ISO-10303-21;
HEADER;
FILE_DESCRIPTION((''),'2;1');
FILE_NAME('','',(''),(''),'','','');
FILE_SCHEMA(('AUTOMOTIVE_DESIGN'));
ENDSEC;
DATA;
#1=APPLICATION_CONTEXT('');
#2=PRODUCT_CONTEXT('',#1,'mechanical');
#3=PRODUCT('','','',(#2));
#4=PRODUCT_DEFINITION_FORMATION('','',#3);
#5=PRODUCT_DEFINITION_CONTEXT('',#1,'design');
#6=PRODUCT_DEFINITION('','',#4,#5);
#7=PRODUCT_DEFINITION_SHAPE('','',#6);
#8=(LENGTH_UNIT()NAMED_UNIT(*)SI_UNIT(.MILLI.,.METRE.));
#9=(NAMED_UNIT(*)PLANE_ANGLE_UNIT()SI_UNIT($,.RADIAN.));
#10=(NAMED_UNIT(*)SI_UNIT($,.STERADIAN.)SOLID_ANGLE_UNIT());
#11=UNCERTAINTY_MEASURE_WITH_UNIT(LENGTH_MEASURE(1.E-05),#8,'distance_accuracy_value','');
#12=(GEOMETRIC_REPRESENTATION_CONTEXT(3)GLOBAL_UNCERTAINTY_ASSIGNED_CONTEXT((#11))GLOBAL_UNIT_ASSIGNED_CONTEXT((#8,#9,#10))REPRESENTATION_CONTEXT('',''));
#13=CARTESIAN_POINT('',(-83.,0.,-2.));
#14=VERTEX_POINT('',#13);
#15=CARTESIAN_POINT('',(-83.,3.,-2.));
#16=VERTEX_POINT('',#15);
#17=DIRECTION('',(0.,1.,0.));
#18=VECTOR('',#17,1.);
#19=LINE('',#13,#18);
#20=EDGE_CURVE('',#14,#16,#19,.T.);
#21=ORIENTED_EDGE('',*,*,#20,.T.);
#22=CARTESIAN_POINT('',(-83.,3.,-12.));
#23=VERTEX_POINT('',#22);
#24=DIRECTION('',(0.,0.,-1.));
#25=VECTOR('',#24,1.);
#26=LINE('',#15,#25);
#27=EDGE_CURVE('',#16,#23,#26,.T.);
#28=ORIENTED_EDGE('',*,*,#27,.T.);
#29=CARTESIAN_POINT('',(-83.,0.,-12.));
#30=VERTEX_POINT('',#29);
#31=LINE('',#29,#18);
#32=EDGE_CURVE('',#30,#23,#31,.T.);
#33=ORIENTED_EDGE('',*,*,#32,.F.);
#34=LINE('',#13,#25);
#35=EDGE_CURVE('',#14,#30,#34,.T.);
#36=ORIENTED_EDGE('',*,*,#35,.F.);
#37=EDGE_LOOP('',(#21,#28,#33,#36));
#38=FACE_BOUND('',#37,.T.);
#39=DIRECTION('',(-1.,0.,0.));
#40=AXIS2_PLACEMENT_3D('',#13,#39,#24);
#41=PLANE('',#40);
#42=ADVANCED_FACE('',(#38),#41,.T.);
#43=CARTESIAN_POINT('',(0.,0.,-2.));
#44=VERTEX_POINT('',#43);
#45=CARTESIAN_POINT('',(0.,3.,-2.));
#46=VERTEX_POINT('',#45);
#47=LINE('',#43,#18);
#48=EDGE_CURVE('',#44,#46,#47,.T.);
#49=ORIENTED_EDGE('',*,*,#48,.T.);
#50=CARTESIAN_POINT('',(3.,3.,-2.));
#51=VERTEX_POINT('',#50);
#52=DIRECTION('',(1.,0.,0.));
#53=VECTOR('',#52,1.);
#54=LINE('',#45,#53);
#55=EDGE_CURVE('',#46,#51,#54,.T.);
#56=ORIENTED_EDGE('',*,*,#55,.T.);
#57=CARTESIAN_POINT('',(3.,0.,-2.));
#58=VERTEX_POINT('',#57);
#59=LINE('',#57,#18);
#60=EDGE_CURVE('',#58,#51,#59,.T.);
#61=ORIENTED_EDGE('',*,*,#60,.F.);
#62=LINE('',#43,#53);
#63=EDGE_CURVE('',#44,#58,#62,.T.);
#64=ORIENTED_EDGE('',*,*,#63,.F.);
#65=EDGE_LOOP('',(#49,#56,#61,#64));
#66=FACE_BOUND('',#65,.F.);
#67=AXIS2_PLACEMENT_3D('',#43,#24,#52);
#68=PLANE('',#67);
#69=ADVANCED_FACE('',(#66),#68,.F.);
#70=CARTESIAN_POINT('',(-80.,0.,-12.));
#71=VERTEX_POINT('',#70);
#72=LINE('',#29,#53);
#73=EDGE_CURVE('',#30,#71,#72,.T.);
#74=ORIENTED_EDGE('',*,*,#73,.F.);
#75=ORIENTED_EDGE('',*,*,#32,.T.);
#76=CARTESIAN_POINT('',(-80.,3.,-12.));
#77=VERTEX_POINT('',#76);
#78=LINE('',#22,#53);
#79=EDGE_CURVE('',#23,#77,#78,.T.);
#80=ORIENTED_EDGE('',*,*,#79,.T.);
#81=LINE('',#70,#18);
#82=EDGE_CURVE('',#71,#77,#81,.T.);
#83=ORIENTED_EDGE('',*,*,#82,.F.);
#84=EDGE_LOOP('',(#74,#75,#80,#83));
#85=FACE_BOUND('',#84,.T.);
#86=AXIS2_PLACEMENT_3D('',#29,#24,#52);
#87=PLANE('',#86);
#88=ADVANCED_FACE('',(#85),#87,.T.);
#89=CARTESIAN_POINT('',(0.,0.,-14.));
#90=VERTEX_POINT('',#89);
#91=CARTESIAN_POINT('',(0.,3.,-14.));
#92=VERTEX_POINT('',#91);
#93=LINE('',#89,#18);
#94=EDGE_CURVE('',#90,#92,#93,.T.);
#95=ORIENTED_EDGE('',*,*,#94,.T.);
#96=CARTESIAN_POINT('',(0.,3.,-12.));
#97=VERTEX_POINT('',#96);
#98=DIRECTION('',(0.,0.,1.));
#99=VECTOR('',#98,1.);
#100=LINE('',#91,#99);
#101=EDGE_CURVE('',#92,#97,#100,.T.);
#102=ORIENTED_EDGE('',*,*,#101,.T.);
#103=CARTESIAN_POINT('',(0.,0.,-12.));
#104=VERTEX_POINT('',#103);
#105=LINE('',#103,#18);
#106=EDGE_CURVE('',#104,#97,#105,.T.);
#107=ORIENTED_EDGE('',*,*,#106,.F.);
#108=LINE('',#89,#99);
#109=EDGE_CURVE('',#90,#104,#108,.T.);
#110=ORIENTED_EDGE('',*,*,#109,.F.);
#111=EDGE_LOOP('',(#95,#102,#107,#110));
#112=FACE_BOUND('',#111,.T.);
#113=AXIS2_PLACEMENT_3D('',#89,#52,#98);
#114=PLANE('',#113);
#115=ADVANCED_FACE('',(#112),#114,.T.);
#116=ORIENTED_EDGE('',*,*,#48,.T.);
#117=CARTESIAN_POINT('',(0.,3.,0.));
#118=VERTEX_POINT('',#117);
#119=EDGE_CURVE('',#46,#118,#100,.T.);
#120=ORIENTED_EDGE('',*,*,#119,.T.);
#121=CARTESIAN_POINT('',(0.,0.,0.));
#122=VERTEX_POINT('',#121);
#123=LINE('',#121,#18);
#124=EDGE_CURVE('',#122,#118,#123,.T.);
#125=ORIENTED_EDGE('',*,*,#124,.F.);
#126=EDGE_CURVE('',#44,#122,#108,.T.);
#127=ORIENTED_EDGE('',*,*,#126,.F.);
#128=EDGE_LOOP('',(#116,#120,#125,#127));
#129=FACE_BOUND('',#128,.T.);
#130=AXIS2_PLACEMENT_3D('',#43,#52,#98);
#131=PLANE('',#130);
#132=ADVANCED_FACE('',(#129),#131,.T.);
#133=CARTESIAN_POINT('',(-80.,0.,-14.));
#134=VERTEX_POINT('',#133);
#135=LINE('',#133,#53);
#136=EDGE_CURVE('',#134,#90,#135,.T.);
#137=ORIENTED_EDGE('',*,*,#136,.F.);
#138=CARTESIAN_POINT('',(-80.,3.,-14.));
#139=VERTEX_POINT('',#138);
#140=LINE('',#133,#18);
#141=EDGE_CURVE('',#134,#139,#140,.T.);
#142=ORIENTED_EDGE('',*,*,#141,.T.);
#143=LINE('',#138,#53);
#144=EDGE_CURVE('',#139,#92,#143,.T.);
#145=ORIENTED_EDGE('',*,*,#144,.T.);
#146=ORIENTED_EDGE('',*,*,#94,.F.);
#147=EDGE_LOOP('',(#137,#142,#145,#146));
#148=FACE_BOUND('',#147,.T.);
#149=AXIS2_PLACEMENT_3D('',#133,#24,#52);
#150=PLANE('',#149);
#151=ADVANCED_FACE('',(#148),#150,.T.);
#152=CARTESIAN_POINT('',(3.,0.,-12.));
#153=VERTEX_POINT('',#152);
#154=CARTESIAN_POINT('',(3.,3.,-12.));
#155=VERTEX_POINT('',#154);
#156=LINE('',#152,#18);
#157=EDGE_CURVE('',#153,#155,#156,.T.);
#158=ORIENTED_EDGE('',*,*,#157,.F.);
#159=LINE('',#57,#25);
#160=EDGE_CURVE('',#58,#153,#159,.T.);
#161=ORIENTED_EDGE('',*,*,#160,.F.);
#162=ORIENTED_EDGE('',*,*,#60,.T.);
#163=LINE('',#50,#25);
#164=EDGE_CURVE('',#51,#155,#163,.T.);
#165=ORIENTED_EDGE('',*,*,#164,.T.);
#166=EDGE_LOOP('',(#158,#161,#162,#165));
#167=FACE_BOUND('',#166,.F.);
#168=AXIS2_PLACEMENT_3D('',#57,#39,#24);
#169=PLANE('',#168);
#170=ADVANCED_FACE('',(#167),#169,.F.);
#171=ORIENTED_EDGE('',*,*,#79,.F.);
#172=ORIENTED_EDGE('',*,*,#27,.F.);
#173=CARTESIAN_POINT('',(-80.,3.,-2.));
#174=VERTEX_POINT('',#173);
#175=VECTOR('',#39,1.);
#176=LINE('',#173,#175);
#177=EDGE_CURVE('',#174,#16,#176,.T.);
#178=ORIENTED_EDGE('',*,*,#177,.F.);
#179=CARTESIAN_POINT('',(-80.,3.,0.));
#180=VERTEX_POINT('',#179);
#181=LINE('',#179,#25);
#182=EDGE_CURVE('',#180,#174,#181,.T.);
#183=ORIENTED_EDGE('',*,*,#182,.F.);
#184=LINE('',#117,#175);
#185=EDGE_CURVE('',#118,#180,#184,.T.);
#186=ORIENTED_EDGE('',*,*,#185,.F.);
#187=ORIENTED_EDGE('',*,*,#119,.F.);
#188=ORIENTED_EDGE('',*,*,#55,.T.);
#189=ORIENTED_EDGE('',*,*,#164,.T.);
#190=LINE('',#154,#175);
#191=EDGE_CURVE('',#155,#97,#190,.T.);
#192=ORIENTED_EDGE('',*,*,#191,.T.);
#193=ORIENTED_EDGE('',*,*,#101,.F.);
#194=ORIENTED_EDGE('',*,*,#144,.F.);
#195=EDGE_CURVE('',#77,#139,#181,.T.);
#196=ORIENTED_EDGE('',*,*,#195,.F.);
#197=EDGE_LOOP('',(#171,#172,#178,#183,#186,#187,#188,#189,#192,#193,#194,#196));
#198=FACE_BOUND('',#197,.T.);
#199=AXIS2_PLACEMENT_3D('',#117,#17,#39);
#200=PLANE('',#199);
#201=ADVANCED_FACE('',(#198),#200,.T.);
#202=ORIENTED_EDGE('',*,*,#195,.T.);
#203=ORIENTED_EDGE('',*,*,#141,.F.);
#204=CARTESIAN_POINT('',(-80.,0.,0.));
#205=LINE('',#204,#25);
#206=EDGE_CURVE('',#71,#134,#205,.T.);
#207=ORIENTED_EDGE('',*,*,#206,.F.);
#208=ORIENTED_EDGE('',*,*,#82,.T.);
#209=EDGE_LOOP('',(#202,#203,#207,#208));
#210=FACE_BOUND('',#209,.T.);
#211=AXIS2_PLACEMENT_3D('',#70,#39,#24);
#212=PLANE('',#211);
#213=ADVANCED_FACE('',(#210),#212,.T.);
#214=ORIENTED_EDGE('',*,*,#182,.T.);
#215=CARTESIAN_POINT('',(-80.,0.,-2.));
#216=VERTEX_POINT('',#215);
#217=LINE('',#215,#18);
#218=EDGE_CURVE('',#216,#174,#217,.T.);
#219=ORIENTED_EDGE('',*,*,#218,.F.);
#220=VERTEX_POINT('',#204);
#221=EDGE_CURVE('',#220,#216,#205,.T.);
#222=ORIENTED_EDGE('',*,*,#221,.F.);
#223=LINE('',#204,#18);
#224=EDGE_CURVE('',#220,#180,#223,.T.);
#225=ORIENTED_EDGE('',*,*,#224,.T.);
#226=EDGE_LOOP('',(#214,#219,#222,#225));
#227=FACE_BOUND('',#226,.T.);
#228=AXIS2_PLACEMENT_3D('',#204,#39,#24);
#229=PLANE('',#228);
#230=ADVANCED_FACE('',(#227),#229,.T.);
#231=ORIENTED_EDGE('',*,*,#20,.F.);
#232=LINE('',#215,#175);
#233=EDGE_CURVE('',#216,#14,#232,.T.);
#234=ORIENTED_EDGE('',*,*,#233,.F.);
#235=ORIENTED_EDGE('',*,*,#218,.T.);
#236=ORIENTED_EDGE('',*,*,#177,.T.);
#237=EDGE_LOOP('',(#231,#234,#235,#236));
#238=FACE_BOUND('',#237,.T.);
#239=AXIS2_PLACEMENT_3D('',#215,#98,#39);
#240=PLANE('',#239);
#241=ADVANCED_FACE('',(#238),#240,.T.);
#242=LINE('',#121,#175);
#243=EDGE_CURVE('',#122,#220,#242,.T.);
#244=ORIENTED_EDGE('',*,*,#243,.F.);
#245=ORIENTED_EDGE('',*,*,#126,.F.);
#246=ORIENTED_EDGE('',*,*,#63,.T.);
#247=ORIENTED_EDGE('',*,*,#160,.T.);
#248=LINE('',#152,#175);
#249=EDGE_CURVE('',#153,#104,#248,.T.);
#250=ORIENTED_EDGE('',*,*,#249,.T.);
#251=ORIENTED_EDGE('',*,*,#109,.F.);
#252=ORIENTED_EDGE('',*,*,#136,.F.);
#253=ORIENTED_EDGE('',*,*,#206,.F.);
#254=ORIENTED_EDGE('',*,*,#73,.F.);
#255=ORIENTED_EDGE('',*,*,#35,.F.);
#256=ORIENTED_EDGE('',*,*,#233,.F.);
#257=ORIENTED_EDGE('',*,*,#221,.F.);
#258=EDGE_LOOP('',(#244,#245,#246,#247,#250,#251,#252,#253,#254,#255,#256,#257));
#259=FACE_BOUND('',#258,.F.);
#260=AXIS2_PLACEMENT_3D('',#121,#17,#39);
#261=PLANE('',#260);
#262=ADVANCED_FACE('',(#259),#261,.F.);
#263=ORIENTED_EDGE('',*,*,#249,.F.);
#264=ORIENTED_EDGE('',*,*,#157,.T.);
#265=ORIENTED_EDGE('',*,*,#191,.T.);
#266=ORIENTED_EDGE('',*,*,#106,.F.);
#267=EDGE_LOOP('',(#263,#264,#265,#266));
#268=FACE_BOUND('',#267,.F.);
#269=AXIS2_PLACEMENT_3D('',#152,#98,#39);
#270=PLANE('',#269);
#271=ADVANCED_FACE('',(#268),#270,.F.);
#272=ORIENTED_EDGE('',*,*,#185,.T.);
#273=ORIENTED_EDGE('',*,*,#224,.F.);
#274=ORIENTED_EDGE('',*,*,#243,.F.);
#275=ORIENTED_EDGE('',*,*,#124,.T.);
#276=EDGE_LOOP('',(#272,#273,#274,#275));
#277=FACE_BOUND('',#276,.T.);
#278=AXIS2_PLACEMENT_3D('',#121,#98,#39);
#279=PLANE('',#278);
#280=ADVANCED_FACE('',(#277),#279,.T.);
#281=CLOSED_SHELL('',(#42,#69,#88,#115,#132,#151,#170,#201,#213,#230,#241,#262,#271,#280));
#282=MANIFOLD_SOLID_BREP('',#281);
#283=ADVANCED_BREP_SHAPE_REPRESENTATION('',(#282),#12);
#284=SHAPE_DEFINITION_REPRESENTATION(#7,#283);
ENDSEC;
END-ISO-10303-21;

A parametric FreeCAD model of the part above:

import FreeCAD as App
import Part
import Sketcher


def add_polygon(sketch, points):
    """Adds a closed chain of lines whose ends are joined by coincident constraints."""
    first, n = sketch.GeometryCount, len(points)
    for a, b in zip(points, points[1:] + points[:1]):
        sketch.addGeometry(Part.LineSegment(App.Vector(*a, 0), App.Vector(*b, 0)), False)
    for i in range(n):
        sketch.addConstraint(Sketcher.Constraint("Coincident", first + i, 2, first + (i + 1) % n, 1))

doc = App.newDocument("Part")
body = doc.addObject("PartDesign::Body", "Body")

# Sketch on XZ plane
sketch1 = body.newObject("Sketcher::SketchObject", "Sketch")
sketch1.AttachmentSupport = (doc.getObject("XZ_Plane"), [""])
sketch1.MapMode = "FlatFace"
add_polygon(sketch1, [(-80, 0), (0, 0), (0, -2), (3, -2), (3, -12), (0, -12), (0, -14), (-80, -14), (-80, -12), (-83, -12), (-83, -2), (-80, -2)])  # lines 0-11
sketch1.addConstraint(Sketcher.Constraint("Horizontal", 0))
sketch1.addConstraint(Sketcher.Constraint("Vertical", 1))
sketch1.addConstraint(Sketcher.Constraint("Horizontal", 2))
sketch1.addConstraint(Sketcher.Constraint("Vertical", 3))
sketch1.addConstraint(Sketcher.Constraint("Horizontal", 4))
sketch1.addConstraint(Sketcher.Constraint("Vertical", 5))
sketch1.addConstraint(Sketcher.Constraint("Horizontal", 6))
sketch1.addConstraint(Sketcher.Constraint("Vertical", 7))
sketch1.addConstraint(Sketcher.Constraint("Horizontal", 8))
sketch1.addConstraint(Sketcher.Constraint("Vertical", 9))
sketch1.addConstraint(Sketcher.Constraint("Horizontal", 10))
sketch1.addConstraint(Sketcher.Constraint("Vertical", 11))
sketch1.addConstraint(Sketcher.Constraint("Coincident", 0, 2, -1, 1))
sketch1.addConstraint(Sketcher.Constraint("PointOnObject", 4, 2, -2))
sketch1.addConstraint(Sketcher.Constraint("Horizontal", 4, 2, 7, 2))
sketch1.addConstraint(Sketcher.Constraint("Horizontal", 2, 2, 9, 2))
sketch1.addConstraint(Sketcher.Constraint("Vertical", 7, 2, 10, 2))
sketch1.addConstraint(Sketcher.Constraint("Equal", 4, 8))
sketch1.addConstraint(Sketcher.Constraint("Equal", 1, 5))
sketch1.addConstraint(Sketcher.Constraint("DistanceX", 0, 1, 0, 2, 80.0))
sketch1.addConstraint(Sketcher.Constraint("DistanceX", 2, 1, 2, 2, 3.0))
sketch1.addConstraint(Sketcher.Constraint("DistanceY", 1, 2, 1, 1, 2.0))
sketch1.addConstraint(Sketcher.Constraint("DistanceY", 3, 2, 3, 1, 10.0))
pad1 = body.newObject("PartDesign::Pad", "Pad")
pad1.Profile = sketch1
pad1.Length = 3
pad1.Reversed = True

doc.recompute()
